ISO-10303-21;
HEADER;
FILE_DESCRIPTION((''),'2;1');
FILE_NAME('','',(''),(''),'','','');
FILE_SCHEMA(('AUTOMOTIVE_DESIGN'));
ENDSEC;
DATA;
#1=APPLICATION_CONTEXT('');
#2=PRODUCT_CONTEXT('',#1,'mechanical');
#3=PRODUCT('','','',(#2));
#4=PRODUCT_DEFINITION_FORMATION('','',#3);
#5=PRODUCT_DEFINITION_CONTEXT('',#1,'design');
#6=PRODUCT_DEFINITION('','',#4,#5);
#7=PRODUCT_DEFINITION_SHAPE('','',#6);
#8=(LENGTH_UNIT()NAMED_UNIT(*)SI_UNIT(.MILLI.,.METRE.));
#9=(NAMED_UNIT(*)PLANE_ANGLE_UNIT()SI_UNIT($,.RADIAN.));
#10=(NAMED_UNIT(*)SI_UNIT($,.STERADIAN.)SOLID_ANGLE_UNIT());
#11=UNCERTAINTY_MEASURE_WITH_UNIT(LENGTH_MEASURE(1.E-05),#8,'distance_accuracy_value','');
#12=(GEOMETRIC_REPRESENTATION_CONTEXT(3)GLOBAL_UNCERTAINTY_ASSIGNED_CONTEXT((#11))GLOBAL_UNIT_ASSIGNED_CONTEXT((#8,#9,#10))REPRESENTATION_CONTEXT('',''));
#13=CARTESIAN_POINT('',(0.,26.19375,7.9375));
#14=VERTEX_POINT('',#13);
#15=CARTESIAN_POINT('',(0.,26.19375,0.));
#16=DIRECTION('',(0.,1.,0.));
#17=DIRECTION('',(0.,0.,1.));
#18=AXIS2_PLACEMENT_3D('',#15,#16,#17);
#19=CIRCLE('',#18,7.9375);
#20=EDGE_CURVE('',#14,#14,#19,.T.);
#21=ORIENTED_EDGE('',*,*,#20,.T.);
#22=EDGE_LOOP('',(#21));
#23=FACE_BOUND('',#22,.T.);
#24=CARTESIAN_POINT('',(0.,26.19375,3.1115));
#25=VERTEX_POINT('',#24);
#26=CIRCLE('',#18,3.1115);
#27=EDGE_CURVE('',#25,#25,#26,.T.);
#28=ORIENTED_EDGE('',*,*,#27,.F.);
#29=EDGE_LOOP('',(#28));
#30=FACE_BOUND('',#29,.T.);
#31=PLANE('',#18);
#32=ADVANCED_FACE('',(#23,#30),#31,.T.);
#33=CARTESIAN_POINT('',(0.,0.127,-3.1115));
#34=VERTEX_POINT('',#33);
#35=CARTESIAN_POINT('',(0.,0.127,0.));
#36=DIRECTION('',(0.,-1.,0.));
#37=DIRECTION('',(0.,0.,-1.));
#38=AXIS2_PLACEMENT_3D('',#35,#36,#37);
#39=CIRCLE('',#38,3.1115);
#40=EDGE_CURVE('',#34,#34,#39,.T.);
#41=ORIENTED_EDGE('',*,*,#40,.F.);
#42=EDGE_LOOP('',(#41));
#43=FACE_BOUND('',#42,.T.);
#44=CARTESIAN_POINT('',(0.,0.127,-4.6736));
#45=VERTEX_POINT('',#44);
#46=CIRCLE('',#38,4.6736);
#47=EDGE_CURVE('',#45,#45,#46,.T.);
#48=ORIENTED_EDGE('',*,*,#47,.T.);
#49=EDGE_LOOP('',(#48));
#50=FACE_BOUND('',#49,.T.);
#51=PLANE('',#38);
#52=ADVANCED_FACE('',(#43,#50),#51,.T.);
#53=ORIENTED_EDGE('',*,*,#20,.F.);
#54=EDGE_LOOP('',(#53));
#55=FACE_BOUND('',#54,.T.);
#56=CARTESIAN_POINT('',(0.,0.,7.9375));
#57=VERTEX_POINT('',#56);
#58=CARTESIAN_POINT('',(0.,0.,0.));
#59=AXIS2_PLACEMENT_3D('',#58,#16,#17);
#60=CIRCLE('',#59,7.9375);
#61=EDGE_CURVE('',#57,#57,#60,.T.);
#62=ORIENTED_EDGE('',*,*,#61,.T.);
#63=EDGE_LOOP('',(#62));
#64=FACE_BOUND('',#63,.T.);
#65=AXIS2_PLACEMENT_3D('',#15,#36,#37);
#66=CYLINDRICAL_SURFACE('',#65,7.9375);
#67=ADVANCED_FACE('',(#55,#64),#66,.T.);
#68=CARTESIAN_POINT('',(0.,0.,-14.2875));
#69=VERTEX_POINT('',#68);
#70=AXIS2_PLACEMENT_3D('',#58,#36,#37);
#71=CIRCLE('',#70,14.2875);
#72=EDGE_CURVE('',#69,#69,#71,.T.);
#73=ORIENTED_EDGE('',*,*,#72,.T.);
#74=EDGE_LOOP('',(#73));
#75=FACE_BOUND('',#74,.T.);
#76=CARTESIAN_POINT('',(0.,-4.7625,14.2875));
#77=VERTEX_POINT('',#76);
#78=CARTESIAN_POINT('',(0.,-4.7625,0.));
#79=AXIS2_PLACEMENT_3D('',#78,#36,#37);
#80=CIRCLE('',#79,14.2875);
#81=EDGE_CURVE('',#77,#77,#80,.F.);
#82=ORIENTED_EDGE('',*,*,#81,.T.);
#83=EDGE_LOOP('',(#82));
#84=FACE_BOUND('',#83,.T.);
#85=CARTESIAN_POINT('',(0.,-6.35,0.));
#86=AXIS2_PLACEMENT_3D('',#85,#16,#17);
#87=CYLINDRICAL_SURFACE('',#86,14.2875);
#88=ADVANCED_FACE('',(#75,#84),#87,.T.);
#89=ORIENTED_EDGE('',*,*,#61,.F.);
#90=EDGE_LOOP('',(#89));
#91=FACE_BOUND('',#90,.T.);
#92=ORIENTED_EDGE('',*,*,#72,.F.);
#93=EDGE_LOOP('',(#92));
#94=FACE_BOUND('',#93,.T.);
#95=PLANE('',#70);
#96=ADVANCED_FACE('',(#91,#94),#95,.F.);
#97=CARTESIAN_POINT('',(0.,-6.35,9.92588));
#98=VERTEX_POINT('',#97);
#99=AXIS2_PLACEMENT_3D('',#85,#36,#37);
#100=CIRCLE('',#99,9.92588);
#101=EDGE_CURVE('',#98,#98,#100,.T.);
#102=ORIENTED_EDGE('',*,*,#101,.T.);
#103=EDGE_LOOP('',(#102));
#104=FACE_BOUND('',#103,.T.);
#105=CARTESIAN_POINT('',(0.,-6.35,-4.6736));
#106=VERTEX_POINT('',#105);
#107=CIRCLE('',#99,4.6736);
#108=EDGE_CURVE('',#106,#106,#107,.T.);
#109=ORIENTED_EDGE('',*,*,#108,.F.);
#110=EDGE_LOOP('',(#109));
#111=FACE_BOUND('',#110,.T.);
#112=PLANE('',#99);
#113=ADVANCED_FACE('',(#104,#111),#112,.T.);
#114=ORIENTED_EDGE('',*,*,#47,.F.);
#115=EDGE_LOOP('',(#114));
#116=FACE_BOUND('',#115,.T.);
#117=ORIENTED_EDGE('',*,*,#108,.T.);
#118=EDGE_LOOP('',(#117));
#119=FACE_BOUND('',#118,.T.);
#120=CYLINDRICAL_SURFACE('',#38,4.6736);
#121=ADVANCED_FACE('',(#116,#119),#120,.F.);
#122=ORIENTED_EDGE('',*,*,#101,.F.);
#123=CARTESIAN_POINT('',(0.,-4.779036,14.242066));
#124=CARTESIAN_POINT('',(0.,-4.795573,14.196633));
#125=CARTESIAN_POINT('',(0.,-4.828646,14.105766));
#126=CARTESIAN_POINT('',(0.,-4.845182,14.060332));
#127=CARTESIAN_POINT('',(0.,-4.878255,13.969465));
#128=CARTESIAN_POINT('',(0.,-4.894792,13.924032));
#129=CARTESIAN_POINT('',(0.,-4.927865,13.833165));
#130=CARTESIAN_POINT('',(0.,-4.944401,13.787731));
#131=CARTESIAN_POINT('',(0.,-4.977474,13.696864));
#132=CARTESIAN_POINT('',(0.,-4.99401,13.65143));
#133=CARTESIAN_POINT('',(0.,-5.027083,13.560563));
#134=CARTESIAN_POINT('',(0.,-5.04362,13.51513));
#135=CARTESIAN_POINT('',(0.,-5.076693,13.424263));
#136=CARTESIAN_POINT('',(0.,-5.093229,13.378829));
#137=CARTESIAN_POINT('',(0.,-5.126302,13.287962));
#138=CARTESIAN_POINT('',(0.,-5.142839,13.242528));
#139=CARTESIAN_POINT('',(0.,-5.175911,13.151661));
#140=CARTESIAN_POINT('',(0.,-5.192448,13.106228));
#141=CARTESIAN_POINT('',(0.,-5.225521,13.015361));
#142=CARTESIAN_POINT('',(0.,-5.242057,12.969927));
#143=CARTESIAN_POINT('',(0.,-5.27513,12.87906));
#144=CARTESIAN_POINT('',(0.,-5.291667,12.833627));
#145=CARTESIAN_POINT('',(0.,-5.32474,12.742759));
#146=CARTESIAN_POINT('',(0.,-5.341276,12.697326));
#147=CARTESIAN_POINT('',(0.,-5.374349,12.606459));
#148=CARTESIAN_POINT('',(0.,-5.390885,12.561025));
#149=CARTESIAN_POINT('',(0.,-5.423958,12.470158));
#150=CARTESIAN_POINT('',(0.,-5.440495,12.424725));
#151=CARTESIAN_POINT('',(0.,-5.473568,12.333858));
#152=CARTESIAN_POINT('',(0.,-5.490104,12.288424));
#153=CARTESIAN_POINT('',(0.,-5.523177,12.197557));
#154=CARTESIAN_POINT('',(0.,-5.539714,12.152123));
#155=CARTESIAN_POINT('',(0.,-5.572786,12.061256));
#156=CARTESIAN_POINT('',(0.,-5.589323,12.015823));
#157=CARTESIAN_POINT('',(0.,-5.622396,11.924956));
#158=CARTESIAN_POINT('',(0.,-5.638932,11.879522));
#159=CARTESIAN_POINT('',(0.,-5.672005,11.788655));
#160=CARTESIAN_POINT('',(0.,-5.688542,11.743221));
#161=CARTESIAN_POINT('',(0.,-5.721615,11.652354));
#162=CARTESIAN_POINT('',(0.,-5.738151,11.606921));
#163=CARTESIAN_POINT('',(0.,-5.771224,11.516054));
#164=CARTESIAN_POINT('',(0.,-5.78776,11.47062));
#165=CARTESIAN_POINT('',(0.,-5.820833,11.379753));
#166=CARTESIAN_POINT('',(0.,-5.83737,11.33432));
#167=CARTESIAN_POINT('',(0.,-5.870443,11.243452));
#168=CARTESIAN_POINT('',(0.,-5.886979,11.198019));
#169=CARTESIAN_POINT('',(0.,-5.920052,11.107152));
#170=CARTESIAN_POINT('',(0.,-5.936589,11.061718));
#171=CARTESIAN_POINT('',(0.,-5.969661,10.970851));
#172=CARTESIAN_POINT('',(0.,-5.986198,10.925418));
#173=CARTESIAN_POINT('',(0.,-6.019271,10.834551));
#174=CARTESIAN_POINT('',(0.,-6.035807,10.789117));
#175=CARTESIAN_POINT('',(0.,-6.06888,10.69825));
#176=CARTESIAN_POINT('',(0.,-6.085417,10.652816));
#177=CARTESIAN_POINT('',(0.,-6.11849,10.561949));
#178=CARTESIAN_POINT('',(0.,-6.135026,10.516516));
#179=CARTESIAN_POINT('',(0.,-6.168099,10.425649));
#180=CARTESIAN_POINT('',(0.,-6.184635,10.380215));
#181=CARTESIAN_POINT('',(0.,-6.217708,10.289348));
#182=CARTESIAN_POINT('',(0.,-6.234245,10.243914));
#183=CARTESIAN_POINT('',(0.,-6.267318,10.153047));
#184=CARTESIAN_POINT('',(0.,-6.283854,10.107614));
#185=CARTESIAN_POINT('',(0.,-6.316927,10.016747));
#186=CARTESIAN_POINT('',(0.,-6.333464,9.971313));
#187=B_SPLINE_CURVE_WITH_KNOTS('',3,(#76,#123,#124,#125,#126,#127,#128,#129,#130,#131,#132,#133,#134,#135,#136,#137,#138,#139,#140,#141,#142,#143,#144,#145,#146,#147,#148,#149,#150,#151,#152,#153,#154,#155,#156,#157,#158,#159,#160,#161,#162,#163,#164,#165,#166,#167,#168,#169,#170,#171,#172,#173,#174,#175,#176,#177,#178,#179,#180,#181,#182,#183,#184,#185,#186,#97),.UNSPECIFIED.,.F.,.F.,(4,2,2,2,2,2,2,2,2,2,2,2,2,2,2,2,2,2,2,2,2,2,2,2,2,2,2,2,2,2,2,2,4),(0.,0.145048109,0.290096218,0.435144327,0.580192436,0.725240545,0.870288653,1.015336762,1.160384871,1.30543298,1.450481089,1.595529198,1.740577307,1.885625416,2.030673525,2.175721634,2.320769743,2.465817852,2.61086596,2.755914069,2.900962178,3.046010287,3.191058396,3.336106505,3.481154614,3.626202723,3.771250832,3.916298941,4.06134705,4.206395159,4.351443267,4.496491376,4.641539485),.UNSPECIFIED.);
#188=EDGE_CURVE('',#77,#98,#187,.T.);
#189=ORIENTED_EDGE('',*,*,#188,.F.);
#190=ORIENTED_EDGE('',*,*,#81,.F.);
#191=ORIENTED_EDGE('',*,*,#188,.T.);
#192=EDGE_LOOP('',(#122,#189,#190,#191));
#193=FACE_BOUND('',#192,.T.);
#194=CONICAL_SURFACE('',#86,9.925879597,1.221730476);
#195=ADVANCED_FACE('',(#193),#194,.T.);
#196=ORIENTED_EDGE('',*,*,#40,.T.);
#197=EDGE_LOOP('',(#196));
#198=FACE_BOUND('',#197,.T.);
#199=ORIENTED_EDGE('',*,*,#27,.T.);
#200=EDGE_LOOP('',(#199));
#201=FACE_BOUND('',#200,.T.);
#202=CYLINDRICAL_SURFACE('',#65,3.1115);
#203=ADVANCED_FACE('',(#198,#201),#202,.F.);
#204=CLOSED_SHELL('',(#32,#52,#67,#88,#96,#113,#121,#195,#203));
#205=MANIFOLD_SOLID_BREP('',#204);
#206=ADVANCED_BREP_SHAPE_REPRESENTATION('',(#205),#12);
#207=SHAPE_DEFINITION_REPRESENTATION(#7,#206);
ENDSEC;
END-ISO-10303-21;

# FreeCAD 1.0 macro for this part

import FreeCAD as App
import Part
import Sketcher
Q = App.Units.Quantity


def edges_at(feature, points):
    """Names of the edges that pass closest to the given points."""
    edges = feature.Shape.Edges
    near = lambda p: min(range(len(edges)), key=lambda i: edges[i].distToShape(Part.Vertex(*p))[0])
    return sorted({f"Edge{near(p) + 1}" for p in points})

doc = App.newDocument("Part")
body = doc.addObject("PartDesign::Body", "Body")

# Sketch on XZ plane
sketch1 = body.newObject("Sketcher::SketchObject", "Sketch")
sketch1.AttachmentSupport = (doc.getObject("XZ_Plane"), [""])
sketch1.MapMode = "FlatFace"
sketch1.addGeometry(Part.Circle(App.Vector(0, 0, 0), App.Vector(0, 0, 1), 7.9), False)
sketch1.addGeometry(Part.Circle(App.Vector(0, 0, 0), App.Vector(0, 0, 1), 3.1), False)
sketch1.addConstraint(Sketcher.Constraint("Coincident", 0, 3, -1, 1))
sketch1.addConstraint(Sketcher.Constraint("Coincident", 1, 3, -1, 1))
sketch1.addConstraint(Sketcher.Constraint("Diameter", 0, Q("0.625 in")))
sketch1.addConstraint(Sketcher.Constraint("Diameter", 1, Q("0.245 in")))
pad1 = body.newObject("PartDesign::Pad", "Pad")
pad1.Profile = sketch1
pad1.Length = Q("1.03125 in")
pad1.Reversed = True

# Sketch on XZ plane
sketch2 = body.newObject("Sketcher::SketchObject", "Sketch001")
sketch2.AttachmentSupport = (doc.getObject("XZ_Plane"), [""])
sketch2.MapMode = "FlatFace"
sketch2.addGeometry(Part.Circle(App.Vector(0, 0, 0), App.Vector(0, 0, 1), 14), False)
sketch2.addConstraint(Sketcher.Constraint("Coincident", 0, 3, -1, 1))
sketch2.addConstraint(Sketcher.Constraint("Diameter", 0, Q("1.125 in")))
pad2 = body.newObject("PartDesign::Pad", "Pad001")
pad2.Profile = sketch2
pad2.Length = Q("0.25 in")
doc.recompute()

chamfer = body.newObject("PartDesign::Chamfer", "Chamfer")
chamfer.Base = (pad2, edges_at(pad2, [(0, -6.35, 14.287)]))
chamfer.ChamferType = "Two distances"
chamfer.Size = Q("0.0625 in")
chamfer.Size2 = 4.36162

# Sketch on XZ plane
sketch3 = body.newObject("Sketcher::SketchObject", "Sketch002")
sketch3.AttachmentSupport = (doc.getObject("XZ_Plane"), [""])
sketch3.MapMode = "FlatFace"
sketch3.AttachmentOffset = App.Placement(App.Vector(0, 0, 0.25 * 25.4), App.Rotation())
sketch3.addGeometry(Part.Circle(App.Vector(0, 0, 0), App.Vector(0, 0, 1), 4.7), False)
sketch3.addConstraint(Sketcher.Constraint("Coincident", 0, 3, -1, 1))
sketch3.addConstraint(Sketcher.Constraint("Diameter", 0, Q("0.368 in")))
pocket1 = body.newObject("PartDesign::Pocket", "Pocket")
pocket1.Profile = sketch3
pocket1.Length = Q("0.255 in")

doc.recompute()
